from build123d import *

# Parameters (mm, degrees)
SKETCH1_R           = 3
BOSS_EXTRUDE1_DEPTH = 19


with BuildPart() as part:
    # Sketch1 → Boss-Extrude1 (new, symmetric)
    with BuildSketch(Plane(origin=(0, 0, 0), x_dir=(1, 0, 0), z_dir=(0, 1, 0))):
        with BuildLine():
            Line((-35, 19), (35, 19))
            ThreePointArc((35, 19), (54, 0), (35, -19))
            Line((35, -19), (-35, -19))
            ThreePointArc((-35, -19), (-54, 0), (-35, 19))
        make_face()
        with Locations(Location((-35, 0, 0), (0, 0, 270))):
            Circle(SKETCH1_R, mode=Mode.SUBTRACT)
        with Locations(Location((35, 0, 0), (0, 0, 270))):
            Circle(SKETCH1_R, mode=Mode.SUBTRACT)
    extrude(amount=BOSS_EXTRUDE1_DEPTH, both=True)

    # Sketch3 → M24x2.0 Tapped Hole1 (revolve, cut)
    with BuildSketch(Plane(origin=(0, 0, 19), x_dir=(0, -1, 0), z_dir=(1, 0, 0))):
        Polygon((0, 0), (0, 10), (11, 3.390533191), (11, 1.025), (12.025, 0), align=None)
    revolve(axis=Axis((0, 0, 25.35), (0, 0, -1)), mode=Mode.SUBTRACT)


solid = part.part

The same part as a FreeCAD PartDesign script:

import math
import FreeCAD as App
import Part
import Sketcher

V = App.Vector
Q = App.Units.Quantity

doc = App.newDocument("Part")
body = doc.addObject("PartDesign::Body", "Body")

# Sketch on XZ plane
sketch1 = body.newObject("Sketcher::SketchObject", "Sketch")
sketch1.AttachmentSupport = (doc.getObject("XZ_Plane"), [""])
sketch1.MapMode = "FlatFace"
sketch1.addGeometry([
    Part.LineSegment(V(35, -19, 0), V(-35, -19, 0)),  # 0
    Part.ArcOfCircle(Part.Circle(V(-35, 0, 0), V(0, 0, 1), 19), math.radians(90), math.radians(270)),  # 1
    Part.LineSegment(V(-35, 19, 0), V(35, 19, 0)),  # 2
    Part.ArcOfCircle(Part.Circle(V(35, 0, 0), V(0, 0, 1), 19), math.radians(-90), math.radians(90)),  # 3
    Part.Circle(V(35, 0, 0), V(0, 0, 1), 3),  # 4
    Part.Circle(V(-35, 0, 0), V(0, 0, 1), 3),  # 5
], False)
sketch1.addConstraint([
    Sketcher.Constraint("Tangent", 0, 2, 1, 2),
    Sketcher.Constraint("Tangent", 1, 1, 2, 1),
    Sketcher.Constraint("Tangent", 2, 2, 3, 2),
    Sketcher.Constraint("Tangent", 3, 1, 0, 1),
    Sketcher.Constraint("Horizontal", 0),
    Sketcher.Constraint("Horizontal", 2),
    Sketcher.Constraint("Coincident", 4, 3, 3, 3),
    Sketcher.Constraint("Coincident", 5, 3, 1, 3),
    Sketcher.Constraint("Equal", 4, 5),
    Sketcher.Constraint("Symmetric", 1, 3, 3, 3, -1, 1),
    Sketcher.Constraint("Diameter", 4, 6.0),
    Sketcher.Constraint("Radius", 1, 19.0),
    Sketcher.Constraint("DistanceX", 0, 2, 0, 1, 70.0),
])
pad1 = body.newObject("PartDesign::Pad", "Pad")
pad1.Profile = sketch1
pad1.Length = 38
pad1.Midplane = True

# Sketch on YZ plane
sketch2 = body.newObject("Sketcher::SketchObject", "Sketch001")
sketch2.AttachmentSupport = (doc.getObject("YZ_Plane"), [""])
sketch2.MapMode = "FlatFace"
sketch2.addGeometry([
    Part.LineSegment(V(0, 9, 0), V(0, 19, 0)),  # 0
    Part.LineSegment(V(0, 19, 0), V(-12, 19, 0)),  # 1
    Part.LineSegment(V(-12, 19, 0), V(-11, 18, 0)),  # 2
    Part.LineSegment(V(-11, 18, 0), V(-11, 15.6, 0)),  # 3
    Part.LineSegment(V(-11, 15.6, 0), V(0, 9, 0)),  # 4
], False)
sketch2.addConstraint([
    Sketcher.Constraint("Coincident", 0, 2, 1, 1),
    Sketcher.Constraint("Coincident", 1, 2, 2, 1),
    Sketcher.Constraint("Coincident", 2, 2, 3, 1),
    Sketcher.Constraint("Coincident", 3, 2, 4, 1),
    Sketcher.Constraint("Coincident", 4, 2, 0, 1),
    Sketcher.Constraint("Vertical", 0),
    Sketcher.Constraint("Horizontal", 1),
    Sketcher.Constraint("Vertical", 3),
    Sketcher.Constraint("PointOnObject", 0, 2, -2),
    Sketcher.Constraint("DistanceY", 0, 1, 0, 2, 10.0),
    Sketcher.Constraint("Angle", 2, Q("-45 deg")),
    Sketcher.Constraint("Angle", 4, Q("-31 deg")),
    Sketcher.Constraint("DistanceY", -1, 1, 0, 2, 19.0),
    Sketcher.Constraint("DistanceX", 2, 2, -1, 1, 11.0),
    Sketcher.Constraint("DistanceX", 1, 2, 1, 1, 12.025),
])
groove = body.newObject("PartDesign::Groove", "Groove")
groove.Profile = sketch2
groove.ReferenceAxis = (sketch2, ["V_Axis"])
groove.Angle = 360

doc.recompute()
